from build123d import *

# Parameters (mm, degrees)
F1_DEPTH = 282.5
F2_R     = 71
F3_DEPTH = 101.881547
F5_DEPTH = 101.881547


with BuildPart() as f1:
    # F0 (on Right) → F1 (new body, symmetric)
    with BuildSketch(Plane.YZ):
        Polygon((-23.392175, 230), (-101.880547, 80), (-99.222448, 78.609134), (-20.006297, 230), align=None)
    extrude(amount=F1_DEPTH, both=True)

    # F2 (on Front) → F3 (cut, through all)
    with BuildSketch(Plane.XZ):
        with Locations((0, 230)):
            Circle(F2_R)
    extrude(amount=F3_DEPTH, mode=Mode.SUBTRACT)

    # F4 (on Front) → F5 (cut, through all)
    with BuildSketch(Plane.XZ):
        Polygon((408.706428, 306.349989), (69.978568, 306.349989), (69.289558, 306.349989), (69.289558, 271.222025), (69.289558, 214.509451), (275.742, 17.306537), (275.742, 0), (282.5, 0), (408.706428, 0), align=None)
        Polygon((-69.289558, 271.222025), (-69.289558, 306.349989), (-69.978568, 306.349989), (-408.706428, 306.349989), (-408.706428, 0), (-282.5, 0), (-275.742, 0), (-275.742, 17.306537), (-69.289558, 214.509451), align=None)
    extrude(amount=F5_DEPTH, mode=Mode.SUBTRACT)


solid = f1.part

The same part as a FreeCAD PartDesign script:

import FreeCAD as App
import Part
import Sketcher

V = App.Vector
Q = App.Units.Quantity


def add_polygon(sketch, points):
    """Adds a closed chain of lines whose ends are joined by coincident constraints."""
    first, n = sketch.GeometryCount, len(points)
    for a, b in zip(points, points[1:] + points[:1]):
        sketch.addGeometry(Part.LineSegment(App.Vector(*a, 0), App.Vector(*b, 0)), False)
    for i in range(n):
        sketch.addConstraint(Sketcher.Constraint("Coincident", first + i, 2, first + (i + 1) % n, 1))

doc = App.newDocument("Part")
body = doc.addObject("PartDesign::Body", "Body")

# Sketch on YZ plane
sketch1 = body.newObject("Sketcher::SketchObject", "Sketch")
sketch1.AttachmentSupport = (doc.getObject("YZ_Plane"), [""])
sketch1.MapMode = "FlatFace"
add_polygon(sketch1, [(-23.4, 230), (-101.9, 80), (-99.2, 78.6), (-20, 230)])  # lines 0-3
sketch1.addConstraint([
    Sketcher.Constraint("Horizontal", 3),
    Sketcher.Constraint("Perpendicular", 0, 1),
    Sketcher.Constraint("Perpendicular", 1, 2),
    Sketcher.Constraint("Distance", 1, Q("3 mm")),
    Sketcher.Constraint("DistanceY", -1, 1, 0, 2, Q("80 mm")),
    Sketcher.Constraint("DistanceY", -1, 1, 2, 2, Q("230 mm")),
    Sketcher.Constraint("Distance", 0, Q("169.2939 mm")),
    Sketcher.Constraint("DistanceX", 1, 2, -1, 1, Q("99.222448 mm")),
])
pad1 = body.newObject("PartDesign::Pad", "Pad")
pad1.Profile = sketch1
pad1.Length = 565
pad1.Midplane = True

# Sketch on XZ plane
sketch2 = body.newObject("Sketcher::SketchObject", "Sketch001")
sketch2.AttachmentSupport = (doc.getObject("XZ_Plane"), [""])
sketch2.MapMode = "FlatFace"
sketch2.addGeometry(Part.Circle(V(0, 230, 0), V(0, 0, 1), 71), False)
sketch2.addConstraint([
    Sketcher.Constraint("PointOnObject", 0, 3, -2),
    Sketcher.Constraint("Diameter", 0, Q("142 mm")),
    Sketcher.Constraint("DistanceY", -1, 1, 0, 3, Q("230 mm")),
])
pocket1 = body.newObject("PartDesign::Pocket", "Pocket")
pocket1.Profile = sketch2
pocket1.Type = "ThroughAll"
pocket1.Reversed = True

# Sketch on XZ plane
sketch3 = body.newObject("Sketcher::SketchObject", "Sketch002")
sketch3.AttachmentSupport = (doc.getObject("XZ_Plane"), [""])
sketch3.MapMode = "FlatFace"
add_polygon(sketch3, [(409, 306), (69, 306), (69, 215), (276, 17), (276, 0), (409, 0)])  # lines 0-5
add_polygon(sketch3, [(-69, 306), (-409, 306), (-409, 0), (-276, 0), (-276, 17), (-69, 215)])  # lines 6-11
sketch3.addConstraint([
    Sketcher.Constraint("Horizontal", 0),
    Sketcher.Constraint("Vertical", 1),
    Sketcher.Constraint("Vertical", 3),
    Sketcher.Constraint("Horizontal", 4),
    Sketcher.Constraint("Vertical", 5),
    Sketcher.Constraint("Horizontal", 6),
    Sketcher.Constraint("Vertical", 7),
    Sketcher.Constraint("Horizontal", 8),
    Sketcher.Constraint("Vertical", 9),
    Sketcher.Constraint("Vertical", 11),
    Sketcher.Constraint("Symmetric", 4, 2, 7, 2, -1, 1),
    Sketcher.Constraint("Symmetric", 3, 2, 8, 2, -2),
    Sketcher.Constraint("Symmetric", 1, 2, 10, 2, -2),
    Sketcher.Constraint("Horizontal", 5, 2, 6, 2),
    Sketcher.Constraint("Horizontal", 2, 2, 9, 2),
    Sketcher.Constraint("DistanceX", -1, 1, 2, 2, Q("275.742 mm")),
    Sketcher.Constraint("DistanceX", 0, 2, 0, 1, Q("339.41687 mm")),
    Sketcher.Constraint("DistanceX", 4, 1, 4, 2, Q("132.964428 mm")),
    Sketcher.Constraint("DistanceY", 5, 1, 5, 2, Q("306.349989 mm")),
    Sketcher.Constraint("DistanceY", 1, 2, 1, 1, Q("91.840538 mm")),
    Sketcher.Constraint("DistanceY", 3, 2, 3, 1, Q("17.306537 mm")),
])
pocket2 = body.newObject("PartDesign::Pocket", "Pocket001")
pocket2.Profile = sketch3
pocket2.Type = "ThroughAll"
pocket2.Reversed = True

doc.recompute()
